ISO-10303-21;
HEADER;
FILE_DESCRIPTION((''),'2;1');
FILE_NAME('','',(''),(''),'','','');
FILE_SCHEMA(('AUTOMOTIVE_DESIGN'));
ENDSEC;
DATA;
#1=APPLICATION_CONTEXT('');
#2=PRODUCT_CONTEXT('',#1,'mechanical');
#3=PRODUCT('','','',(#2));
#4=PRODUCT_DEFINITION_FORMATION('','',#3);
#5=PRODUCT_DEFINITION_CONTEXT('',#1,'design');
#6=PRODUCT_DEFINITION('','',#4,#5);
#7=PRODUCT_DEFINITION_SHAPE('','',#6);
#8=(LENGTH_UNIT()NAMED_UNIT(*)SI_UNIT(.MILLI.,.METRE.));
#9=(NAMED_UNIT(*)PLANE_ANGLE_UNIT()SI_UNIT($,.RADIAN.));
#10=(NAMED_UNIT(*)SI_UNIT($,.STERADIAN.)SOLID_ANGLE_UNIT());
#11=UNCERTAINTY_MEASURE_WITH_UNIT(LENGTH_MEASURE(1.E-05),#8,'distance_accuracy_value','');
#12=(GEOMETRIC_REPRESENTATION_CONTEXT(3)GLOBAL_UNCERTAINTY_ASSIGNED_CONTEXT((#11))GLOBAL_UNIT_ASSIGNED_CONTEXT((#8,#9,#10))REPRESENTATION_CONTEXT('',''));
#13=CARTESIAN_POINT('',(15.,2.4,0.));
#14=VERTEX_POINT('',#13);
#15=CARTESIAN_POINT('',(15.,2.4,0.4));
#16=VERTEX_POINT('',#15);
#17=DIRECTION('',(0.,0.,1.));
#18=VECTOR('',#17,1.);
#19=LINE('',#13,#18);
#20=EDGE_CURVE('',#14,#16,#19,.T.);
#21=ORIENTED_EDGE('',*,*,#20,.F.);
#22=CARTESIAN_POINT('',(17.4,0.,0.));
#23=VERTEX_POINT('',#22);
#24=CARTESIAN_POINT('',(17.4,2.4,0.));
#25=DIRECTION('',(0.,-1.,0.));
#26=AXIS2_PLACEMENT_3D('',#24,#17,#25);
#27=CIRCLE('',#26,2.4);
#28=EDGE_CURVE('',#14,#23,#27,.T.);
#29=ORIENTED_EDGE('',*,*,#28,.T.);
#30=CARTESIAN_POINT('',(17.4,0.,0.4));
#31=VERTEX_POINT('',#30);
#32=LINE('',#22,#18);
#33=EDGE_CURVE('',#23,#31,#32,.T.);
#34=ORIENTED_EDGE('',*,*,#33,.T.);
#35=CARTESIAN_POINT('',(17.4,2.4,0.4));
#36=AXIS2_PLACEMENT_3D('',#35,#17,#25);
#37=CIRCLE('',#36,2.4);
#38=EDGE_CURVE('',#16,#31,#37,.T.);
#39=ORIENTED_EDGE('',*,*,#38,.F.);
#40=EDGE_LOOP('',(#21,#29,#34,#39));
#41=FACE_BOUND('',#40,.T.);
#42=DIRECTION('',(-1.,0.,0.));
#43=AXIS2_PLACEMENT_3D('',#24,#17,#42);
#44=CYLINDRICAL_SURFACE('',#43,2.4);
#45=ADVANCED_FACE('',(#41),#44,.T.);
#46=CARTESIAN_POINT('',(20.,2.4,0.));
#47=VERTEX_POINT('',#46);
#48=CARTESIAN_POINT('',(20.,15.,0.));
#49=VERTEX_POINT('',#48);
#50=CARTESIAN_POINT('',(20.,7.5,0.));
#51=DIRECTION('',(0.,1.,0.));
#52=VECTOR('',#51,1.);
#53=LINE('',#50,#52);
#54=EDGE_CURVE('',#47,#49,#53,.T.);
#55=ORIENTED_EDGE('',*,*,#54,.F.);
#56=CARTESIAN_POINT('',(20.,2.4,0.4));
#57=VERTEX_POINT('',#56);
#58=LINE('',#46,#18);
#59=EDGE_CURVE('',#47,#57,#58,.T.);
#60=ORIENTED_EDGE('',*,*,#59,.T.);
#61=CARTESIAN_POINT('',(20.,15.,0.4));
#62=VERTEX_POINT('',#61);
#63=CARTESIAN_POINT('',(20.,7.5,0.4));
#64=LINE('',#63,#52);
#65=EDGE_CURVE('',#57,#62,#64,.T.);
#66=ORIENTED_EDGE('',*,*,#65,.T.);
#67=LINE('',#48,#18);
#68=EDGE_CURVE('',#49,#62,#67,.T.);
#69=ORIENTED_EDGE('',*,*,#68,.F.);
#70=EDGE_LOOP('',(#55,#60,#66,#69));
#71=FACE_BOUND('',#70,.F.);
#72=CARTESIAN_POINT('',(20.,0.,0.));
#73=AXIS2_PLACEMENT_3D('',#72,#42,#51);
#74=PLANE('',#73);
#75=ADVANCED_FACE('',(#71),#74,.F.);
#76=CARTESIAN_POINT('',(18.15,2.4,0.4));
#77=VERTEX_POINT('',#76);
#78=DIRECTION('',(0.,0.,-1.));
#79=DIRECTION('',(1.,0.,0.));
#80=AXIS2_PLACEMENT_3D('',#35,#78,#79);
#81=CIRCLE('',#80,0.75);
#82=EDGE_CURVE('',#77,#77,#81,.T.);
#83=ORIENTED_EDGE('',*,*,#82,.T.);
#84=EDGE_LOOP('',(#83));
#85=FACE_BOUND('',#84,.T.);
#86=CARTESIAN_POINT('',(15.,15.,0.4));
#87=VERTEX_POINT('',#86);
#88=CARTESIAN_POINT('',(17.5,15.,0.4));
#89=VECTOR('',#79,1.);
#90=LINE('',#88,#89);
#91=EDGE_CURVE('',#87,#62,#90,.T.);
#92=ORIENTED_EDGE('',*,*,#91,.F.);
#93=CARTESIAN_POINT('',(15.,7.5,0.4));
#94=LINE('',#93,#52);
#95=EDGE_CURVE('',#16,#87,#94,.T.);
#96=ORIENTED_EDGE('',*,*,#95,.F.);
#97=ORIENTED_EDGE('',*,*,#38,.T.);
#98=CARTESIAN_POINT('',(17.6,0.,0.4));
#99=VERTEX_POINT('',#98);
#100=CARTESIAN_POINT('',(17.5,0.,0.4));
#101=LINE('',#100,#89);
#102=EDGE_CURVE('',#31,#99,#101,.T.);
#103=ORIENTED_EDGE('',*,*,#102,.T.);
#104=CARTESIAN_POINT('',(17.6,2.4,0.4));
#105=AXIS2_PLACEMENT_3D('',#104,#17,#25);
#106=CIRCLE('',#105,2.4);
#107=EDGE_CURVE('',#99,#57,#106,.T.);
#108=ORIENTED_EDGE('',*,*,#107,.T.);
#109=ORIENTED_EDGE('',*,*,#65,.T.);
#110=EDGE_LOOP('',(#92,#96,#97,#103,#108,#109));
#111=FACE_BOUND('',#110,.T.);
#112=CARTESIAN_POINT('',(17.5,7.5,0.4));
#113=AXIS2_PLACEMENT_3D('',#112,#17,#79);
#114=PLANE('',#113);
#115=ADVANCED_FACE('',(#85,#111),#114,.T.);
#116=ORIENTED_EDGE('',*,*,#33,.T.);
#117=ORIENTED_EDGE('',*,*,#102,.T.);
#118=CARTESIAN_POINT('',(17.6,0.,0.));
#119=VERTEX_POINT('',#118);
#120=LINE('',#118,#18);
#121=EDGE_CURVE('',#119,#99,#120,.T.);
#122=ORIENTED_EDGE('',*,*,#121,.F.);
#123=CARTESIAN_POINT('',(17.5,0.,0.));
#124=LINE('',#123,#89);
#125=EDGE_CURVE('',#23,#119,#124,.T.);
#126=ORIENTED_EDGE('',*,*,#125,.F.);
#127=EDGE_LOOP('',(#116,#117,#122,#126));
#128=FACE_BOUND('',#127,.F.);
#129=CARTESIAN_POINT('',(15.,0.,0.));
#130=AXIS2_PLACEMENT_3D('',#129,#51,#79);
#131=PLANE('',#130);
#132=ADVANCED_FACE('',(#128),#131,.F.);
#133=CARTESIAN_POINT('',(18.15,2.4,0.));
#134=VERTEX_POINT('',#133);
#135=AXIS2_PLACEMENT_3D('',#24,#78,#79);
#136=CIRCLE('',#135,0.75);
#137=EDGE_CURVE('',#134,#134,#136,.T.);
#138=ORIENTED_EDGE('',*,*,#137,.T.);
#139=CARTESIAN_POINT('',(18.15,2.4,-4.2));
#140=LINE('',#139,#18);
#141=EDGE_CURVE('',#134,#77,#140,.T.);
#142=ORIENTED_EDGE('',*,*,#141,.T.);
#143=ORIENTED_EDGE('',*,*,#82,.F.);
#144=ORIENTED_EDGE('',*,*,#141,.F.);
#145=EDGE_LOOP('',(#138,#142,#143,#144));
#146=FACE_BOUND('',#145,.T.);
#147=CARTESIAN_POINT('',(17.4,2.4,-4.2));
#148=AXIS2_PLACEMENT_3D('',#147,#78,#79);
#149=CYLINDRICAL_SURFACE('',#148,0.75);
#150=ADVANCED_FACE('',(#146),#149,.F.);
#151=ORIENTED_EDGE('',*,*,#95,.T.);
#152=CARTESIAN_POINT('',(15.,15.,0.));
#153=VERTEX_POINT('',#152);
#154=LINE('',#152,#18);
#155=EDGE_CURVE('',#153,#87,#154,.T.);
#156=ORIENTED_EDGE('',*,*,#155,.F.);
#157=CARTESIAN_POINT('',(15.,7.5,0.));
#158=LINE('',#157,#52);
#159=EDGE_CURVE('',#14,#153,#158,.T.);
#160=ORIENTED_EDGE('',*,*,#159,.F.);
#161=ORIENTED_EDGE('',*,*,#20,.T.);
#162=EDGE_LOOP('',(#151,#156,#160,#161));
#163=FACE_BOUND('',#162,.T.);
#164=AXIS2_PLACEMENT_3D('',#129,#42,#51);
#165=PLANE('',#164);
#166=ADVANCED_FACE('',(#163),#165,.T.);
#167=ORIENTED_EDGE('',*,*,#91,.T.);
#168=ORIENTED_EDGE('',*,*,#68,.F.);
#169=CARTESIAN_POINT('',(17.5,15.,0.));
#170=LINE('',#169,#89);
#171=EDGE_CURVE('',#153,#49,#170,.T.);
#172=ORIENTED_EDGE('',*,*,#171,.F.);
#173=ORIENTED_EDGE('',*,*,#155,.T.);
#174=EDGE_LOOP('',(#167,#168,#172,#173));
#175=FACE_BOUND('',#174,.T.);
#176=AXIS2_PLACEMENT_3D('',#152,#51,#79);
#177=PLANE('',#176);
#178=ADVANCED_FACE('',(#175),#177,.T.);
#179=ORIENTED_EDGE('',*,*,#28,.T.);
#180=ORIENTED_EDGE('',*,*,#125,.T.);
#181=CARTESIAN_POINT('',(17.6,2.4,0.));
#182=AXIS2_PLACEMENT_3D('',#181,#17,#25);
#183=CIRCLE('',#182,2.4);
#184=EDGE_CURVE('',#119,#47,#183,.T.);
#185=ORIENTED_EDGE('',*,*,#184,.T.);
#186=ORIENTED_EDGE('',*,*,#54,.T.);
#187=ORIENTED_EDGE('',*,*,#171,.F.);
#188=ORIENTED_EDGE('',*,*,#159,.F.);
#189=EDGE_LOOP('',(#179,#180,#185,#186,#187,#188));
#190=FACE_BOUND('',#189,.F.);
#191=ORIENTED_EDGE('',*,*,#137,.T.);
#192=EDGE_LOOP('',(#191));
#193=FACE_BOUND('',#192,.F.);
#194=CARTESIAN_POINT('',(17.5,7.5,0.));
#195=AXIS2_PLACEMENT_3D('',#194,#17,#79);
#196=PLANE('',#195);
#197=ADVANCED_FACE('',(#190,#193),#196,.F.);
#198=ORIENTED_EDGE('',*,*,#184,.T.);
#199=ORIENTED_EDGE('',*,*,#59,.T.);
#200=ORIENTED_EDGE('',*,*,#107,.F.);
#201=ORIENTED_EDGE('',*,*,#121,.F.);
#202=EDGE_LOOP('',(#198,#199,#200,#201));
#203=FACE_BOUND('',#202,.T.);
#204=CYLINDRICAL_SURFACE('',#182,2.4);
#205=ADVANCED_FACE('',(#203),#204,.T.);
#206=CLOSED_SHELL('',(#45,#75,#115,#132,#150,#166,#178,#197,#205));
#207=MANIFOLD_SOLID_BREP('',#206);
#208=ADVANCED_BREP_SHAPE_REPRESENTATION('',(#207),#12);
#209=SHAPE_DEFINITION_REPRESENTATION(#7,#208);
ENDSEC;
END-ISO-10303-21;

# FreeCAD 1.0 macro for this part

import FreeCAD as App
import Part
import Sketcher
Q = App.Units.Quantity


def edges_at(feature, points):
    """Names of the edges that pass closest to the given points."""
    edges = feature.Shape.Edges
    near = lambda p: min(range(len(edges)), key=lambda i: edges[i].distToShape(Part.Vertex(*p))[0])
    return sorted({f"Edge{near(p) + 1}" for p in points})


def add_polygon(sketch, points):
    """Adds a closed chain of lines whose ends are joined by coincident constraints."""
    first, n = sketch.GeometryCount, len(points)
    for a, b in zip(points, points[1:] + points[:1]):
        sketch.addGeometry(Part.LineSegment(App.Vector(*a, 0), App.Vector(*b, 0)), False)
    for i in range(n):
        sketch.addConstraint(Sketcher.Constraint("Coincident", first + i, 2, first + (i + 1) % n, 1))

doc = App.newDocument("Part")
body = doc.addObject("PartDesign::Body", "Body")

# Sketch on XY plane
sketch1 = body.newObject("Sketcher::SketchObject", "Sketch")
sketch1.AttachmentSupport = (doc.getObject("XY_Plane"), [""])
sketch1.MapMode = "FlatFace"
sketch1.AttachmentOffset = App.Placement(App.Vector(0, 0, -4.2), App.Rotation())
sketch1.addGeometry(Part.Circle(App.Vector(17.4, 2.4, 0), App.Vector(0, 0, 1), 0.8), False)
sketch1.addConstraint(Sketcher.Constraint("Diameter", 0, Q("1.5 mm")))
sketch1.addConstraint(Sketcher.Constraint("DistanceX", -1, 1, 0, 3, Q("17.4 mm")))
sketch1.addConstraint(Sketcher.Constraint("DistanceY", -1, 1, 0, 3, Q("2.4 mm")))
pad1 = body.newObject("PartDesign::Pad", "Pad")
pad1.Profile = sketch1
pad1.Length = 10
body2 = doc.addObject("PartDesign::Body", "Body001")

# Sketch on XY plane
sketch2 = body2.newObject("Sketcher::SketchObject", "Sketch001")
sketch2.AttachmentSupport = (doc.getObject("XY_Plane001"), [""])
sketch2.MapMode = "FlatFace"
add_polygon(sketch2, [(15, 15), (15, 0), (20, 0), (20, 15)])  # lines 0-3
sketch2.addConstraint(Sketcher.Constraint("Vertical", 0))
sketch2.addConstraint(Sketcher.Constraint("Horizontal", 1))
sketch2.addConstraint(Sketcher.Constraint("Vertical", 2))
sketch2.addConstraint(Sketcher.Constraint("Horizontal", 3))
sketch2.addConstraint(Sketcher.Constraint("PointOnObject", 0, 2, -1))
sketch2.addConstraint(Sketcher.Constraint("DistanceX", 1, 1, 1, 2, Q("5 mm")))
sketch2.addConstraint(Sketcher.Constraint("DistanceY", 0, 2, 0, 1, Q("15 mm")))
sketch2.addConstraint(Sketcher.Constraint("DistanceX", -1, 1, 0, 2, Q("15 mm")))
pad2 = body2.newObject("PartDesign::Pad", "Pad001")
pad2.Profile = sketch2
pad2.Length = 0.4
doc.recompute()

fillet = body2.newObject("PartDesign::Fillet", "Fillet")
fillet.Base = (pad2, edges_at(pad2, [(15, 0, 0.2), (20, 0, 0.2)]))
fillet.Radius = 2.4
doc.recompute()

boolean = body2.newObject("PartDesign::Boolean", "Boolean")
boolean.Type = "Cut"
boolean.addObjects([body])

doc.recompute()
